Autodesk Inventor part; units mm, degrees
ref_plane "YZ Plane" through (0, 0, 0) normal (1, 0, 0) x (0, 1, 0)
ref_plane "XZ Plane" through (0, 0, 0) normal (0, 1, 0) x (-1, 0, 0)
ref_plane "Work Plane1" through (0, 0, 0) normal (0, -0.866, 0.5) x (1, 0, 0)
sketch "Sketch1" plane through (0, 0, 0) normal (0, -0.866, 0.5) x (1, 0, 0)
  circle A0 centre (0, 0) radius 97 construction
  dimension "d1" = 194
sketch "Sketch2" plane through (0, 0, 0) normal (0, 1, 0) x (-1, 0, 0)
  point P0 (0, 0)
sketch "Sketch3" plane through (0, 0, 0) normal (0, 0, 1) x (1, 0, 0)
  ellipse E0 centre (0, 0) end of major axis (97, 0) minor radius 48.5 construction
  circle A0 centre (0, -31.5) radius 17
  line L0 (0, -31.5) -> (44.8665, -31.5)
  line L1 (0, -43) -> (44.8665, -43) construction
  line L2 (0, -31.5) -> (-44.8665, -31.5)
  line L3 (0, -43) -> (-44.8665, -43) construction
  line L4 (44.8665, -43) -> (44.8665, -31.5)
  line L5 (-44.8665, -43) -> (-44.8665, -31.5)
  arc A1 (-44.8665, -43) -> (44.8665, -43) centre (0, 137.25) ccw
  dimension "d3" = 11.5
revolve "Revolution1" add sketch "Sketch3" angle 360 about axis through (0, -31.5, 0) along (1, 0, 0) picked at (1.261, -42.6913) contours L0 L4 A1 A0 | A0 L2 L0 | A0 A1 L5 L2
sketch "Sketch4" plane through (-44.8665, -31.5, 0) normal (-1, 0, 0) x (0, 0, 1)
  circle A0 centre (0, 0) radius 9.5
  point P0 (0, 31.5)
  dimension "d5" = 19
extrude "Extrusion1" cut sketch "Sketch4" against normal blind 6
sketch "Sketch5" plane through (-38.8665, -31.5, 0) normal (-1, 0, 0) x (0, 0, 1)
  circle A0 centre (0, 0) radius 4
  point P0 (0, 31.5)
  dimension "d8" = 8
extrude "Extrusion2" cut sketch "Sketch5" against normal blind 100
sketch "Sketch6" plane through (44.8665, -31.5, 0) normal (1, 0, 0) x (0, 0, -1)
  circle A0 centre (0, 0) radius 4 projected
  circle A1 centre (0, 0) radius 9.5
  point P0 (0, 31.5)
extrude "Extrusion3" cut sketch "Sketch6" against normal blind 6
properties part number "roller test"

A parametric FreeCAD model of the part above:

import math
import FreeCAD as App
import Part
import Sketcher
from FreeCAD import Vector
Q = App.Units.Quantity

doc = App.newDocument("Part")
body = doc.addObject("PartDesign::Body", "Body")

# Sketch on XY plane
sketch1 = body.newObject("Sketcher::SketchObject", "Sketch")
sketch1.AttachmentSupport = (doc.getObject("XY_Plane"), [""])
sketch1.MapMode = "FlatFace"
sketch1.addGeometry([
    Part.LineSegment(Vector(45, -32, 0), Vector(-45, -32, 0)),
    Part.LineSegment(Vector(-45, -32, 0), Vector(-45, -43, 0)),
    Part.ArcOfCircle(Part.Circle(Vector(0, 137, 0), Vector(0, 0, 1), 186), math.radians(-104), math.radians(-76)),
    Part.LineSegment(Vector(45, -43, 0), Vector(45, -32, 0)),
], False)
sketch1.addGeometry(Part.LineSegment(Vector(-45, -32, 0), Vector(45, -32, 0)), True)  # axis
sketch1.addConstraint([
    Sketcher.Constraint("Coincident", 0, 2, 1, 1),
    Sketcher.Constraint("Coincident", 1, 2, 2, 1),
    Sketcher.Constraint("Coincident", 2, 2, 3, 1),
    Sketcher.Constraint("Coincident", 3, 2, 0, 1),
    Sketcher.Constraint("Horizontal", 0),
    Sketcher.Constraint("Vertical", 1),
    Sketcher.Constraint("Vertical", 3),
    Sketcher.Constraint("Horizontal", 4),
    Sketcher.Constraint("Coincident", 4, 1, 0, 2),
    Sketcher.Constraint("Symmetric", 1, 2, 2, 2, -2),
    Sketcher.Constraint("Vertical", 2, 2, 4, 2),
    Sketcher.Constraint("DistanceY", 1, 2, 1, 1, Q("11.5 mm")),
    Sketcher.Constraint("Radius", 2, Q("185.75 mm")),
    Sketcher.Constraint("DistanceY", 1, 2, -1, 1, Q("43 mm")),
    Sketcher.Constraint("DistanceX", 0, 2, 0, 1, Q("89.733 mm")),
])
revolution = body.newObject("PartDesign::Revolution", "Revolution")
revolution.Profile = sketch1
revolution.ReferenceAxis = (sketch1, ["Axis0"])
revolution.Angle = 360

# Sketch on YZ plane
sketch2 = body.newObject("Sketcher::SketchObject", "Sketch001")
sketch2.AttachmentSupport = (doc.getObject("YZ_Plane"), [""])
sketch2.MapMode = "FlatFace"
sketch2.AttachmentOffset = App.Placement(Vector(0, 0, -44.8665), App.Rotation())
sketch2.addGeometry(Part.Circle(Vector(-32, 0, 0), Vector(0, 0, 1), 10), False)
sketch2.addConstraint([
    Sketcher.Constraint("PointOnObject", 0, 3, -1),
    Sketcher.Constraint("Diameter", 0, Q("19 mm")),
    Sketcher.Constraint("DistanceX", 0, 3, -1, 1, Q("31.5 mm")),
])
pocket1 = body.newObject("PartDesign::Pocket", "Pocket")
pocket1.Profile = sketch2
pocket1.Length = 6
pocket1.Reversed = True

# Sketch on YZ plane
sketch3 = body.newObject("Sketcher::SketchObject", "Sketch002")
sketch3.AttachmentSupport = (doc.getObject("YZ_Plane"), [""])
sketch3.MapMode = "FlatFace"
sketch3.AttachmentOffset = App.Placement(Vector(0, 0, -38.8665), App.Rotation())
sketch3.addGeometry(Part.Circle(Vector(-31.5, 0, 0), Vector(0, 0, 1), 4), False)
sketch3.addConstraint([
    Sketcher.Constraint("PointOnObject", 0, 3, -1),
    Sketcher.Constraint("Diameter", 0, Q("8 mm")),
    Sketcher.Constraint("DistanceX", 0, 3, -1, 1, Q("31.5 mm")),
])
pocket2 = body.newObject("PartDesign::Pocket", "Pocket001")
pocket2.Profile = sketch3
pocket2.Length = 100
pocket2.Reversed = True

# Sketch on YZ plane
sketch4 = body.newObject("Sketcher::SketchObject", "Sketch003")
sketch4.AttachmentSupport = (doc.getObject("YZ_Plane"), [""])
sketch4.MapMode = "FlatFace"
sketch4.AttachmentOffset = App.Placement(Vector(0, 0, 44.8665), App.Rotation())
sketch4.addGeometry([
    Part.Circle(Vector(-31.5, 0, 0), Vector(0, 0, 1), 9.5),
    Part.Circle(Vector(-31.5, 0, 0), Vector(0, 0, 1), 4),
], False)
sketch4.addConstraint([
    Sketcher.Constraint("Coincident", 1, 3, 0, 3),
    Sketcher.Constraint("PointOnObject", 0, 3, -1),
    Sketcher.Constraint("Diameter", 0, Q("19 mm")),
    Sketcher.Constraint("Diameter", 1, Q("8 mm")),
    Sketcher.Constraint("DistanceX", 0, 3, -1, 1, Q("31.5 mm")),
])
pocket3 = body.newObject("PartDesign::Pocket", "Pocket002")
pocket3.Profile = sketch4
pocket3.Length = 6

doc.recompute()
